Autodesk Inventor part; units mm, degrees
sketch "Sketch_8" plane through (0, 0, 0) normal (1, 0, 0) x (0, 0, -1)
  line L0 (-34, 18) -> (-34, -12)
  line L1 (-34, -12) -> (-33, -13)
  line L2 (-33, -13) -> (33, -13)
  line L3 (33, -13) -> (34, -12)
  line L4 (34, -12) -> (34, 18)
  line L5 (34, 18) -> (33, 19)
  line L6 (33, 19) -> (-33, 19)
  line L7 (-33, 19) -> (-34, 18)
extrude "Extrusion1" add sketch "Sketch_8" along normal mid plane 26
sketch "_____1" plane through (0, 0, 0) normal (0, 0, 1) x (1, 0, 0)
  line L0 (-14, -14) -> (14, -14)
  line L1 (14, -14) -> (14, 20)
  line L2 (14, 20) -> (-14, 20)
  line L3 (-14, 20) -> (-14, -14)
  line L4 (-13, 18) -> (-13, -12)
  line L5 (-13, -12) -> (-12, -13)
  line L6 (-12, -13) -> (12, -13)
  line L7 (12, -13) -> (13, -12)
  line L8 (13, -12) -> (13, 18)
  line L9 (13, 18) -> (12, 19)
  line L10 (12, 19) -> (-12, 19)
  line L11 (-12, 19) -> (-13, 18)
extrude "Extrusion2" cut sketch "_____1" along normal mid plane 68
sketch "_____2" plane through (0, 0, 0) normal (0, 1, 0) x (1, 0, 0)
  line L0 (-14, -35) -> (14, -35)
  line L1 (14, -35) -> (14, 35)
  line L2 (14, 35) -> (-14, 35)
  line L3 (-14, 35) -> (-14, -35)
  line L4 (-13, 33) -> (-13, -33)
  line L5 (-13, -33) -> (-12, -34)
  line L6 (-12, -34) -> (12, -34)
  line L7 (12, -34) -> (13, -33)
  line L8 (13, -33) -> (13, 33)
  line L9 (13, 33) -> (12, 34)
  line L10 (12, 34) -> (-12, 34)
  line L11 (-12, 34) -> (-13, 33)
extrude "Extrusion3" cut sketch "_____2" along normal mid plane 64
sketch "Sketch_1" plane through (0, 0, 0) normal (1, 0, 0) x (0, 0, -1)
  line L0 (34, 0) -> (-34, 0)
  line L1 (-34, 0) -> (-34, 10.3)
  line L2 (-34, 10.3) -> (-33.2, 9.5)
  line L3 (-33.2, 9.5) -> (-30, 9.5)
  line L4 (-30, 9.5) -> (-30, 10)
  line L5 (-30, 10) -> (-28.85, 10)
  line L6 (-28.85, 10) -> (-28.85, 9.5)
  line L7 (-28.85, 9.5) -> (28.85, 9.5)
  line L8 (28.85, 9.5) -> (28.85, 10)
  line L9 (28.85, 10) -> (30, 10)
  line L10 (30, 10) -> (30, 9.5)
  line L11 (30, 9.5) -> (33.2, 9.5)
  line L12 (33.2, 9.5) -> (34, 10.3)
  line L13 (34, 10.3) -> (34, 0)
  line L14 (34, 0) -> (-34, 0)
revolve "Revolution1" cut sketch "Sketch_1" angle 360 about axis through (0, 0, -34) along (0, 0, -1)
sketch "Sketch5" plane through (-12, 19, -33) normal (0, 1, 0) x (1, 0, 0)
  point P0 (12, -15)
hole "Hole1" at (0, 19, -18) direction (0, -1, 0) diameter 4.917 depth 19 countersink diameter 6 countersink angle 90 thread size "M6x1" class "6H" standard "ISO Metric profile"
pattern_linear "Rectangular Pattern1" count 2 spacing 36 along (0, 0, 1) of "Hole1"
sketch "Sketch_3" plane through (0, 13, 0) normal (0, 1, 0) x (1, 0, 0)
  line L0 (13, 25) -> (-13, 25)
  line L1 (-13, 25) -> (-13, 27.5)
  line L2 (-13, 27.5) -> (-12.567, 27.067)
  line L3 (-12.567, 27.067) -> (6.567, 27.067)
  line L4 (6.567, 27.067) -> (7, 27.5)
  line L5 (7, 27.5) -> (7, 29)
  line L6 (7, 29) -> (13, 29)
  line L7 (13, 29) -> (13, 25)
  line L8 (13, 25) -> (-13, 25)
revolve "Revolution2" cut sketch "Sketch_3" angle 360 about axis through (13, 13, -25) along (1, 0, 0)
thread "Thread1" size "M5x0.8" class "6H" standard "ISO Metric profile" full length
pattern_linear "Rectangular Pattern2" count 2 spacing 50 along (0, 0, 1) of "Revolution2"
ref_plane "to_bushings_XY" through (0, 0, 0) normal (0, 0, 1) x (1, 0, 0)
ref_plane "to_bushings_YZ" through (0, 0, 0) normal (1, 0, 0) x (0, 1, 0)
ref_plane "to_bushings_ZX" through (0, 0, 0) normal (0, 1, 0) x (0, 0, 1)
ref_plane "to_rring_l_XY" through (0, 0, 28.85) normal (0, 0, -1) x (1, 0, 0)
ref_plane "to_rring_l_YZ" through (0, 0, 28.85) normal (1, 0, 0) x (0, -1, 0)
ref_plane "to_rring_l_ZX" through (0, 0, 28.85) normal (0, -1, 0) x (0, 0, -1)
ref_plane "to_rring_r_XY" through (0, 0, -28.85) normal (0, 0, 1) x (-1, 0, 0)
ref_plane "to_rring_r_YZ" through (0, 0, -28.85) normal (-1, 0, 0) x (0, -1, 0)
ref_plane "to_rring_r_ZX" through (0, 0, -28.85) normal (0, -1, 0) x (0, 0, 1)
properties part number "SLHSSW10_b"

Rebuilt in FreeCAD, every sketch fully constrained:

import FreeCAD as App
import Part
import Sketcher


def add_polygon(sketch, points):
    """Adds a closed chain of lines whose ends are joined by coincident constraints."""
    first, n = sketch.GeometryCount, len(points)
    for a, b in zip(points, points[1:] + points[:1]):
        sketch.addGeometry(Part.LineSegment(App.Vector(*a, 0), App.Vector(*b, 0)), False)
    for i in range(n):
        sketch.addConstraint(Sketcher.Constraint("Coincident", first + i, 2, first + (i + 1) % n, 1))

doc = App.newDocument("Part")
body = doc.addObject("PartDesign::Body", "Body")

sketch1 = body.newObject("Sketcher::SketchObject", "Sketch")
sketch1.AttachmentSupport = (doc.getObject("YZ_Plane"), [""])
sketch1.MapMode = "FlatFace"
add_polygon(sketch1, [(19, 33), (18, 34), (-12, 34), (-13, 33), (-13, -33), (-12, -34), (18, -34), (19, -33)])
sketch1.addConstraint([
    Sketcher.Constraint("Horizontal", 1),
    Sketcher.Constraint("Vertical", 3),
    Sketcher.Constraint("Horizontal", 5),
    Sketcher.Constraint("Vertical", 7),
    Sketcher.Constraint("Symmetric", 1, 2, 4, 2, -1),
    Sketcher.Constraint("Perpendicular", 0, 2),
    Sketcher.Constraint("Perpendicular", 2, 4),
    Sketcher.Constraint("Perpendicular", 4, 6),
    Sketcher.Constraint("Horizontal", 3, 2, 6, 2),
    Sketcher.Constraint("Horizontal", 2, 2, 7, 2),
    Sketcher.Constraint("Vertical", 0, 2, 5, 2),
    Sketcher.Constraint("DistanceX", 1, 2, 1, 1, 30.0),
    Sketcher.Constraint("DistanceY", 3, 2, 3, 1, 66.0),
    Sketcher.Constraint("DistanceX", -1, 1, 0, 2, 18.0),
    Sketcher.Constraint("DistanceY", -1, 1, 0, 2, 34.0),
])
pad1 = body.newObject("PartDesign::Pad", "Pad")
pad1.Profile = sketch1
pad1.Length = 26
pad1.Midplane = True

sketch2 = body.newObject("Sketcher::SketchObject", "Sketch001")
sketch2.AttachmentSupport = (doc.getObject("XY_Plane"), [""])
sketch2.MapMode = "FlatFace"
add_polygon(sketch2, [(-14, 20), (-14, -14), (14, -14), (14, 20)])
add_polygon(sketch2, [(-13, -12), (-13, 18), (-12, 19), (12, 19), (13, 18), (13, -12), (12, -13), (-12, -13)])
sketch2.addConstraint([
    Sketcher.Constraint("Vertical", 0),
    Sketcher.Constraint("Horizontal", 1),
    Sketcher.Constraint("Vertical", 2),
    Sketcher.Constraint("Horizontal", 3),
    Sketcher.Constraint("Vertical", 4),
    Sketcher.Constraint("Horizontal", 6),
    Sketcher.Constraint("Vertical", 8),
    Sketcher.Constraint("Horizontal", 10),
    Sketcher.Constraint("Symmetric", 4, 2, 7, 2, -2),
    Sketcher.Constraint("Perpendicular", 5, 7),
    Sketcher.Constraint("Perpendicular", 7, 9),
    Sketcher.Constraint("Perpendicular", 9, 11),
    Sketcher.Constraint("Horizontal", 8, 2, 11, 2),
    Sketcher.Constraint("Vertical", 6, 2, 9, 2),
    Sketcher.Constraint("Vertical", 5, 2, 10, 2),
    Sketcher.Constraint("DistanceX", 1, 1, 1, 2, 28.0),
    Sketcher.Constraint("DistanceX", 6, 1, 6, 2, 24.0),
    Sketcher.Constraint("DistanceY", 0, 2, 0, 1, 34.0),
    Sketcher.Constraint("DistanceY", 4, 1, 4, 2, 30.0),
    Sketcher.Constraint("DistanceX", 0, 2, -1, 1, 14.0),
    Sketcher.Constraint("DistanceY", 0, 2, -1, 1, 14.0),
    Sketcher.Constraint("DistanceX", 4, 2, -1, 1, 13.0),
    Sketcher.Constraint("DistanceY", -1, 1, 4, 2, 18.0),
])
pocket1 = body.newObject("PartDesign::Pocket", "Pocket")
pocket1.Profile = sketch2
pocket1.Length = 68
pocket1.Midplane = True

sketch3 = body.newObject("Sketcher::SketchObject", "Sketch002")
sketch3.AttachmentSupport = (doc.getObject("XZ_Plane"), [""])
sketch3.MapMode = "FlatFace"
add_polygon(sketch3, [(-14, -35), (-14, 35), (14, 35), (14, -35)])
add_polygon(sketch3, [(-13, 33), (-13, -33), (-12, -34), (12, -34), (13, -33), (13, 33), (12, 34), (-12, 34)])
sketch3.addConstraint([
    Sketcher.Constraint("Vertical", 0),
    Sketcher.Constraint("Horizontal", 1),
    Sketcher.Constraint("Vertical", 2),
    Sketcher.Constraint("Horizontal", 3),
    Sketcher.Constraint("Vertical", 4),
    Sketcher.Constraint("Horizontal", 6),
    Sketcher.Constraint("Vertical", 8),
    Sketcher.Constraint("Horizontal", 10),
    Sketcher.Constraint("Symmetric", 0, 2, 2, 2, -1, 1),
    Sketcher.Constraint("Symmetric", 4, 2, 8, 2, -1, 1),
    Sketcher.Constraint("Symmetric", 5, 2, 9, 2, -1, 1),
    Sketcher.Constraint("Perpendicular", 5, 7),
    Sketcher.Constraint("Perpendicular", 9, 11),
    Sketcher.Constraint("Horizontal", 4, 2, 7, 2),
    Sketcher.Constraint("Horizontal", 8, 2, 11, 2),
    Sketcher.Constraint("Vertical", 6, 2, 9, 2),
    Sketcher.Constraint("DistanceX", 1, 1, 1, 2, 28.0),
    Sketcher.Constraint("DistanceX", 6, 1, 6, 2, 24.0),
    Sketcher.Constraint("DistanceY", 0, 1, 0, 2, 70.0),
    Sketcher.Constraint("DistanceY", 4, 2, 4, 1, 66.0),
    Sketcher.Constraint("DistanceX", 4, 2, -1, 1, 13.0),
])
pocket2 = body.newObject("PartDesign::Pocket", "Pocket001")
pocket2.Profile = sketch3
pocket2.Length = 64
pocket2.Midplane = True

sketch4 = body.newObject("Sketcher::SketchObject", "Sketch003")
sketch4.AttachmentSupport = (doc.getObject("YZ_Plane"), [""])
sketch4.MapMode = "FlatFace"
add_polygon(sketch4, [(0, 34), (0, -34), (10.3, -34), (9.5, -33.2), (9.5, -30), (10, -30), (10, -28.85), (9.5, -28.85), (9.5, 28.85), (10, 28.85), (10, 30), (9.5, 30), (9.5, 33.2), (10.3, 34)])
sketch4.addConstraint([
    Sketcher.Constraint("Vertical", 0),
    Sketcher.Constraint("Horizontal", 1),
    Sketcher.Constraint("Vertical", 3),
    Sketcher.Constraint("Horizontal", 4),
    Sketcher.Constraint("Vertical", 5),
    Sketcher.Constraint("Horizontal", 6),
    Sketcher.Constraint("Vertical", 7),
    Sketcher.Constraint("Horizontal", 8),
    Sketcher.Constraint("Vertical", 9),
    Sketcher.Constraint("Horizontal", 10),
    Sketcher.Constraint("Vertical", 11),
    Sketcher.Constraint("Horizontal", 13),
    Sketcher.Constraint("Symmetric", 0, 2, 13, 2, -1, 1),
    Sketcher.Constraint("Symmetric", 5, 2, 8, 2, -1),
    Sketcher.Constraint("Symmetric", 3, 2, 10, 2, -1),
    Sketcher.Constraint("Perpendicular", 2, 12),
    Sketcher.Constraint("Vertical", 3, 2, 6, 2),
    Sketcher.Constraint("Vertical", 1, 2, 12, 2),
    Sketcher.Constraint("Equal", 3, 11),
    Sketcher.Constraint("DistanceY", 0, 2, 0, 1, 68.0),
    Sketcher.Constraint("DistanceX", 1, 1, 1, 2, 10.3),
    Sketcher.Constraint("DistanceX", 4, 1, 4, 2, 0.5),
    Sketcher.Constraint("DistanceY", 3, 1, 3, 2, 3.2),
    Sketcher.Constraint("DistanceY", 7, 1, 7, 2, 57.7),
    Sketcher.Constraint("DistanceY", 3, 2, -1, 1, 30.0),
])
groove = body.newObject("PartDesign::Groove", "Groove")
groove.Profile = sketch4
groove.ReferenceAxis = (sketch4, ["V_Axis"])
groove.Angle = 360

sketch5 = body.newObject("Sketcher::SketchObject", "Sketch004")
sketch5.AttachmentSupport = (doc.getObject("XZ_Plane"), [""])
sketch5.MapMode = "FlatFace"
sketch5.AttachmentOffset = App.Placement(App.Vector(0, 0, -19), App.Rotation())
sketch5.addGeometry(Part.Circle(App.Vector(0, -18, 0), App.Vector(0, 0, 1), 2.4585), False)
sketch5.addConstraint([
    Sketcher.Constraint("PointOnObject", 0, 3, -2),
    Sketcher.Constraint("Diameter", 0, 4.917),
    Sketcher.Constraint("DistanceY", 0, 3, -1, 1, 18.0),
])
doc.recompute()
hole = body.newObject("PartDesign::Hole", "Hole")
hole.Profile = sketch5
hole.ThreadType = "None"
hole.Diameter = 4.917
hole.DepthType = "Dimension"
hole.Depth = 19
hole.DrillPoint = "Flat"
hole.HoleCutType = "Countersink"
hole.HoleCutDiameter = 6
hole.HoleCutCountersinkAngle = 90
hole.Reversed = True
doc.recompute()

linearpattern = body.newObject("PartDesign::LinearPattern", "LinearPattern")
linearpattern.Originals = [hole]
linearpattern.Direction = (doc.getObject("Z_Axis"), [""])
linearpattern.Mode = "offset"
linearpattern.Offset = 36
linearpattern.Occurrences = 2
body.Tip = linearpattern

sketch6 = body.newObject("Sketcher::SketchObject", "Sketch005")
sketch6.AttachmentSupport = (doc.getObject("XZ_Plane"), [""])
sketch6.MapMode = "FlatFace"
sketch6.AttachmentOffset = App.Placement(App.Vector(0, 0, -13), App.Rotation())
add_polygon(sketch6, [(-13, -25), (13, -25), (13, -29), (7, -29), (7, -27.5), (6.567, -27.067), (-12.567, -27.067), (-13, -27.5)])
sketch6.addGeometry(Part.LineSegment(App.Vector(-13, -25, 0), App.Vector(13, -25, 0)), True)
sketch6.addConstraint([
    Sketcher.Constraint("Horizontal", 0),
    Sketcher.Constraint("Vertical", 1),
    Sketcher.Constraint("Horizontal", 2),
    Sketcher.Constraint("Vertical", 3),
    Sketcher.Constraint("Horizontal", 5),
    Sketcher.Constraint("Vertical", 7),
    Sketcher.Constraint("Horizontal", 8),
    Sketcher.Constraint("Coincident", 8, 1, 7, 2),
    Sketcher.Constraint("Perpendicular", 4, 6),
    Sketcher.Constraint("Horizontal", 3, 2, 6, 2),
    Sketcher.Constraint("Vertical", 1, 2, 8, 2),
    Sketcher.Constraint("Equal", 4, 6),
    Sketcher.Constraint("DistanceX", 0, 1, 0, 2, 26.0),
    Sketcher.Constraint("DistanceX", 2, 2, 2, 1, 6.0),
    Sketcher.Constraint("DistanceY", 1, 2, 1, 1, 4.0),
    Sketcher.Constraint("DistanceY", 3, 1, 3, 2, 1.5),
    Sketcher.Constraint("DistanceX", -1, 1, 0, 2, 13.0),
    Sketcher.Constraint("DistanceY", 0, 2, -1, 1, 25.0),
    Sketcher.Constraint("DistanceX", 5, 2, 5, 1, 19.134),
])
groove2 = body.newObject("PartDesign::Groove", "Groove001")
groove2.Profile = sketch6
groove2.ReferenceAxis = (sketch6, ["Axis0"])
groove2.Angle = 360
doc.recompute()

linearpattern2 = body.newObject("PartDesign::LinearPattern", "LinearPattern001")
linearpattern2.Originals = [groove2]
linearpattern2.Direction = (doc.getObject("Z_Axis"), [""])
linearpattern2.Mode = "offset"
linearpattern2.Offset = 50
linearpattern2.Occurrences = 2
body.Tip = linearpattern2

doc.recompute()
